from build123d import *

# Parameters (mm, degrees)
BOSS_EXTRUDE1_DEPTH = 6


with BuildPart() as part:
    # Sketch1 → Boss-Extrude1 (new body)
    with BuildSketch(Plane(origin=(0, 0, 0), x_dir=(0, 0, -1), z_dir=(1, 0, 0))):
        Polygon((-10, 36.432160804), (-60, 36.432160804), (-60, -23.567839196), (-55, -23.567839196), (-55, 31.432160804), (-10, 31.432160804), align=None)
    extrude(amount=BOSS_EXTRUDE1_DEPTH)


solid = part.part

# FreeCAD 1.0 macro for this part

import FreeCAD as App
import Part
import Sketcher


def add_polygon(sketch, points):
    """Adds a closed chain of lines whose ends are joined by coincident constraints."""
    first, n = sketch.GeometryCount, len(points)
    for a, b in zip(points, points[1:] + points[:1]):
        sketch.addGeometry(Part.LineSegment(App.Vector(*a, 0), App.Vector(*b, 0)), False)
    for i in range(n):
        sketch.addConstraint(Sketcher.Constraint("Coincident", first + i, 2, first + (i + 1) % n, 1))

doc = App.newDocument("Part")
body = doc.addObject("PartDesign::Body", "Body")

sketch1 = body.newObject("Sketcher::SketchObject", "Sketch")
sketch1.AttachmentSupport = (doc.getObject("YZ_Plane"), [""])
sketch1.MapMode = "FlatFace"
add_polygon(sketch1, [(36, 10), (36, 60), (-24, 60), (-24, 55), (31, 55), (31, 10)])
sketch1.addConstraint([
    Sketcher.Constraint("Vertical", 0),
    Sketcher.Constraint("Horizontal", 1),
    Sketcher.Constraint("Vertical", 2),
    Sketcher.Constraint("Horizontal", 3),
    Sketcher.Constraint("Vertical", 4),
    Sketcher.Constraint("Horizontal", 5),
    Sketcher.Constraint("Equal", 5, 2),
    Sketcher.Constraint("DistanceX", 1, 2, 1, 1, 60.0),
    Sketcher.Constraint("DistanceX", 3, 1, 3, 2, 55.0),
    Sketcher.Constraint("DistanceY", 0, 1, 0, 2, 50.0),
    Sketcher.Constraint("DistanceY", -1, 1, 0, 2, 60.0),
    Sketcher.Constraint("DistanceX", -1, 1, 0, 2, 36.432161),
])
pad1 = body.newObject("PartDesign::Pad", "Pad")
pad1.Profile = sketch1
pad1.Length = 6

doc.recompute()
